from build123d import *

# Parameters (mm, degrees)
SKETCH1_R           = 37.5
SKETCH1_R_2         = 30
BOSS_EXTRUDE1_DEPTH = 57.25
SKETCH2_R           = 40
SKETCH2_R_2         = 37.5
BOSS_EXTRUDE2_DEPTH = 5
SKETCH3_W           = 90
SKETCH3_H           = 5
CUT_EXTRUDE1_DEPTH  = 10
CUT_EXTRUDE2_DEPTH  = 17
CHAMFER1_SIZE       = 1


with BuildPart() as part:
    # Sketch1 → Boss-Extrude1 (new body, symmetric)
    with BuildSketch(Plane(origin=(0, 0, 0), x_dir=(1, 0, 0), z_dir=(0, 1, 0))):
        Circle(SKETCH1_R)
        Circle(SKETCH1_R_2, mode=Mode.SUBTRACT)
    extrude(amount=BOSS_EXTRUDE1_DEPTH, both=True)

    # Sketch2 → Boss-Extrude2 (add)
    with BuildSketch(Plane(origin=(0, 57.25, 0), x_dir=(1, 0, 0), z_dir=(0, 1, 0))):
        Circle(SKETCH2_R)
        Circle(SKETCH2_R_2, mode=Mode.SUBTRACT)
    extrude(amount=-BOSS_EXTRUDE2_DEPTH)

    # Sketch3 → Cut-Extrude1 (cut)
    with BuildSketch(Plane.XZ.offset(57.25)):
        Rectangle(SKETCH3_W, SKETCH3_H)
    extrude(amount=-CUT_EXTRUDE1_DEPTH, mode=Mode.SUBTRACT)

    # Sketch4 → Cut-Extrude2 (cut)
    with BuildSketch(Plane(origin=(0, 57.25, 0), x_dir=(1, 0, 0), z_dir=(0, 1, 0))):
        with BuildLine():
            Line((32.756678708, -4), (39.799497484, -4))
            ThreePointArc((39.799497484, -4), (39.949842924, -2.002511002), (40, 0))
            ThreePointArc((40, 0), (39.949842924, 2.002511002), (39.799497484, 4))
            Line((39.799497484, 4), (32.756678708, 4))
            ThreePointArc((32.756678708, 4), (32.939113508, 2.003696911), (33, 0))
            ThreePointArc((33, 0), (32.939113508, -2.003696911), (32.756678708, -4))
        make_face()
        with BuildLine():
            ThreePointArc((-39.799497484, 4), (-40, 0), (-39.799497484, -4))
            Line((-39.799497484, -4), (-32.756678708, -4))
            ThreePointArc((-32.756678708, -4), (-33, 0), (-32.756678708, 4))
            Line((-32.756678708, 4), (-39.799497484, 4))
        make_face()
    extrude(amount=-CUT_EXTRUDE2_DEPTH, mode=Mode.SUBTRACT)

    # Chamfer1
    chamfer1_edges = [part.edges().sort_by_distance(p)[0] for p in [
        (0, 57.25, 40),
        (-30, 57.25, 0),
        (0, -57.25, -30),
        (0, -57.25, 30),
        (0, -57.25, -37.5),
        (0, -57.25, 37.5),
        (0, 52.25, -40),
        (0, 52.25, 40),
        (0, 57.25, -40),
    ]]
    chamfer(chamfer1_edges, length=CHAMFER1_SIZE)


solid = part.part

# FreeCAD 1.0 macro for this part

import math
import FreeCAD as App
import Part
import Sketcher

V = App.Vector


def edges_at(feature, points):
    """Names of the edges that pass closest to the given points."""
    edges = feature.Shape.Edges
    near = lambda p: min(range(len(edges)), key=lambda i: edges[i].distToShape(Part.Vertex(*p))[0])
    return sorted({f"Edge{near(p) + 1}" for p in points})

doc = App.newDocument("Part")
body = doc.addObject("PartDesign::Body", "Body")

# Sketch on XZ plane
sketch1 = body.newObject("Sketcher::SketchObject", "Sketch")
sketch1.AttachmentSupport = (doc.getObject("XZ_Plane"), [""])
sketch1.MapMode = "FlatFace"
sketch1.addGeometry([
    Part.Circle(V(0, 0, 0), V(0, 0, 1), 38),
    Part.Circle(V(0, 0, 0), V(0, 0, 1), 30),
], False)
sketch1.addConstraint([
    Sketcher.Constraint("Coincident", 0, 3, -1, 1),
    Sketcher.Constraint("Coincident", 1, 3, -1, 1),
    Sketcher.Constraint("Diameter", 0, 75.0),
    Sketcher.Constraint("Diameter", 1, 60.0),
])
pad1 = body.newObject("PartDesign::Pad", "Pad")
pad1.Profile = sketch1
pad1.Length = 114.5
pad1.Midplane = True

# Sketch on XZ plane
sketch2 = body.newObject("Sketcher::SketchObject", "Sketch001")
sketch2.AttachmentSupport = (doc.getObject("XZ_Plane"), [""])
sketch2.MapMode = "FlatFace"
sketch2.AttachmentOffset = App.Placement(V(0, 0, -57.25), App.Rotation())
sketch2.addGeometry([
    Part.Circle(V(0, 0, 0), V(0, 0, 1), 40),
    Part.Circle(V(0, 0, 0), V(0, 0, 1), 38),
], False)
sketch2.addConstraint([
    Sketcher.Constraint("Coincident", 0, 3, -1, 1),
    Sketcher.Constraint("Coincident", 1, 3, -1, 1),
    Sketcher.Constraint("Diameter", 0, 80.0),
    Sketcher.Constraint("Diameter", 1, 75.0),
])
pad2 = body.newObject("PartDesign::Pad", "Pad001")
pad2.Profile = sketch2
pad2.Length = 5

# Sketch on XZ plane
sketch3 = body.newObject("Sketcher::SketchObject", "Sketch002")
sketch3.AttachmentSupport = (doc.getObject("XZ_Plane"), [""])
sketch3.MapMode = "FlatFace"
sketch3.AttachmentOffset = App.Placement(V(0, 0, 57.25), App.Rotation())
sketch3.addGeometry([
    Part.LineSegment(V(-45, 2, 0), V(-45, -2, 0)),
    Part.LineSegment(V(-45, -2, 0), V(45, -2, 0)),
    Part.LineSegment(V(45, -2, 0), V(45, 2, 0)),
    Part.LineSegment(V(45, 2, 0), V(-45, 2, 0)),
], False)
sketch3.addConstraint([
    Sketcher.Constraint("Coincident", 0, 2, 1, 1),
    Sketcher.Constraint("Coincident", 1, 2, 2, 1),
    Sketcher.Constraint("Coincident", 2, 2, 3, 1),
    Sketcher.Constraint("Coincident", 3, 2, 0, 1),
    Sketcher.Constraint("Vertical", 0),
    Sketcher.Constraint("Horizontal", 1),
    Sketcher.Constraint("Vertical", 2),
    Sketcher.Constraint("Horizontal", 3),
    Sketcher.Constraint("Symmetric", 0, 2, 2, 2, -1, 1),
    Sketcher.Constraint("DistanceX", 1, 1, 1, 2, 90.0),
    Sketcher.Constraint("DistanceY", 0, 2, 0, 1, 5.0),
])
pocket1 = body.newObject("PartDesign::Pocket", "Pocket")
pocket1.Profile = sketch3
pocket1.Length = 10

# Sketch on XZ plane
sketch4 = body.newObject("Sketcher::SketchObject", "Sketch003")
sketch4.AttachmentSupport = (doc.getObject("XZ_Plane"), [""])
sketch4.MapMode = "FlatFace"
sketch4.AttachmentOffset = App.Placement(V(0, 0, -57.25), App.Rotation())
sketch4.addGeometry([
    Part.LineSegment(V(32.8, 4, 0), V(39.8, 4, 0)),  # 0
    Part.ArcOfCircle(Part.Circle(V(0, 0, 0), V(0, 0, 1), 40), math.radians(0), math.radians(5.74)),  # 1
    Part.ArcOfCircle(Part.Circle(V(0, 0, 0), V(0, 0, 1), 40), math.radians(-5.74), math.radians(0)),  # 2
    Part.LineSegment(V(39.8, -4, 0), V(32.8, -4, 0)),  # 3
    Part.ArcOfCircle(Part.Circle(V(0, 0, 0), V(0, 0, 1), 33), math.radians(-6.96), math.radians(0)),  # 4
    Part.ArcOfCircle(Part.Circle(V(0, 0, 0), V(0, 0, 1), 33), math.radians(0), math.radians(6.96)),  # 5
    Part.ArcOfCircle(Part.Circle(V(0, 0, 0), V(0, 0, 1), 40), math.radians(174.26), math.radians(185.74)),  # 6
    Part.LineSegment(V(-39.8, 4, 0), V(-32.8, 4, 0)),  # 7
    Part.ArcOfCircle(Part.Circle(V(0, 0, 0), V(0, 0, 1), 33), math.radians(173.04), math.radians(186.96)),  # 8
    Part.LineSegment(V(-32.8, -4, 0), V(-39.8, -4, 0)),  # 9
], False)
sketch4.addConstraint([
    Sketcher.Constraint("Coincident", 0, 2, 1, 2),
    Sketcher.Constraint("Tangent", 1, 1, 2, 2),
    Sketcher.Constraint("Coincident", 2, 1, 3, 1),
    Sketcher.Constraint("Coincident", 3, 2, 4, 1),
    Sketcher.Constraint("Tangent", 4, 2, 5, 1),
    Sketcher.Constraint("Coincident", 5, 2, 0, 1),
    Sketcher.Constraint("Coincident", 6, 1, 7, 1),
    Sketcher.Constraint("Coincident", 7, 2, 8, 1),
    Sketcher.Constraint("Coincident", 8, 2, 9, 1),
    Sketcher.Constraint("Coincident", 9, 2, 6, 2),
    Sketcher.Constraint("Horizontal", 0),
    Sketcher.Constraint("Horizontal", 3),
    Sketcher.Constraint("Horizontal", 7),
    Sketcher.Constraint("Horizontal", 9),
    Sketcher.Constraint("Coincident", 1, 3, -1, 1),
    Sketcher.Constraint("Coincident", 4, 3, -1, 1),
    Sketcher.Constraint("Coincident", 6, 3, -1, 1),
    Sketcher.Constraint("Coincident", 8, 3, -1, 1),
    Sketcher.Constraint("Equal", 1, 2),
    Sketcher.Constraint("Equal", 4, 5),
    Sketcher.Constraint("Equal", 2, 6),
    Sketcher.Constraint("Equal", 5, 8),
    Sketcher.Constraint("PointOnObject", 1, 1, -1),
    Sketcher.Constraint("PointOnObject", 4, 2, -1),
    Sketcher.Constraint("Horizontal", 5, 2, 6, 1),
    Sketcher.Constraint("Horizontal", 3, 2, 8, 2),
    Sketcher.Constraint("Vertical", 0, 2, 2, 1),
    Sketcher.Constraint("Radius", 1, 40.0),
    Sketcher.Constraint("Radius", 4, 33.0),
    Sketcher.Constraint("DistanceY", -1, 1, 0, 2, 4.0),
])
pocket2 = body.newObject("PartDesign::Pocket", "Pocket001")
pocket2.Profile = sketch4
pocket2.Length = 17
pocket2.Reversed = True
doc.recompute()

chamfer = body.newObject("PartDesign::Chamfer", "Chamfer")
chamfer.Base = (pocket2, edges_at(pocket2, [
    (0, 57.25, 40),
    (-30, 57.25, 0),
    (0, -57.25, -30),
    (0, -57.25, 30),
    (0, -57.25, -37.5),
    (0, -57.25, 37.5),
    (0, 52.25, -40),
    (0, 52.25, 40),
    (0, 57.25, -40),
]))
chamfer.Size = 1

doc.recompute()
